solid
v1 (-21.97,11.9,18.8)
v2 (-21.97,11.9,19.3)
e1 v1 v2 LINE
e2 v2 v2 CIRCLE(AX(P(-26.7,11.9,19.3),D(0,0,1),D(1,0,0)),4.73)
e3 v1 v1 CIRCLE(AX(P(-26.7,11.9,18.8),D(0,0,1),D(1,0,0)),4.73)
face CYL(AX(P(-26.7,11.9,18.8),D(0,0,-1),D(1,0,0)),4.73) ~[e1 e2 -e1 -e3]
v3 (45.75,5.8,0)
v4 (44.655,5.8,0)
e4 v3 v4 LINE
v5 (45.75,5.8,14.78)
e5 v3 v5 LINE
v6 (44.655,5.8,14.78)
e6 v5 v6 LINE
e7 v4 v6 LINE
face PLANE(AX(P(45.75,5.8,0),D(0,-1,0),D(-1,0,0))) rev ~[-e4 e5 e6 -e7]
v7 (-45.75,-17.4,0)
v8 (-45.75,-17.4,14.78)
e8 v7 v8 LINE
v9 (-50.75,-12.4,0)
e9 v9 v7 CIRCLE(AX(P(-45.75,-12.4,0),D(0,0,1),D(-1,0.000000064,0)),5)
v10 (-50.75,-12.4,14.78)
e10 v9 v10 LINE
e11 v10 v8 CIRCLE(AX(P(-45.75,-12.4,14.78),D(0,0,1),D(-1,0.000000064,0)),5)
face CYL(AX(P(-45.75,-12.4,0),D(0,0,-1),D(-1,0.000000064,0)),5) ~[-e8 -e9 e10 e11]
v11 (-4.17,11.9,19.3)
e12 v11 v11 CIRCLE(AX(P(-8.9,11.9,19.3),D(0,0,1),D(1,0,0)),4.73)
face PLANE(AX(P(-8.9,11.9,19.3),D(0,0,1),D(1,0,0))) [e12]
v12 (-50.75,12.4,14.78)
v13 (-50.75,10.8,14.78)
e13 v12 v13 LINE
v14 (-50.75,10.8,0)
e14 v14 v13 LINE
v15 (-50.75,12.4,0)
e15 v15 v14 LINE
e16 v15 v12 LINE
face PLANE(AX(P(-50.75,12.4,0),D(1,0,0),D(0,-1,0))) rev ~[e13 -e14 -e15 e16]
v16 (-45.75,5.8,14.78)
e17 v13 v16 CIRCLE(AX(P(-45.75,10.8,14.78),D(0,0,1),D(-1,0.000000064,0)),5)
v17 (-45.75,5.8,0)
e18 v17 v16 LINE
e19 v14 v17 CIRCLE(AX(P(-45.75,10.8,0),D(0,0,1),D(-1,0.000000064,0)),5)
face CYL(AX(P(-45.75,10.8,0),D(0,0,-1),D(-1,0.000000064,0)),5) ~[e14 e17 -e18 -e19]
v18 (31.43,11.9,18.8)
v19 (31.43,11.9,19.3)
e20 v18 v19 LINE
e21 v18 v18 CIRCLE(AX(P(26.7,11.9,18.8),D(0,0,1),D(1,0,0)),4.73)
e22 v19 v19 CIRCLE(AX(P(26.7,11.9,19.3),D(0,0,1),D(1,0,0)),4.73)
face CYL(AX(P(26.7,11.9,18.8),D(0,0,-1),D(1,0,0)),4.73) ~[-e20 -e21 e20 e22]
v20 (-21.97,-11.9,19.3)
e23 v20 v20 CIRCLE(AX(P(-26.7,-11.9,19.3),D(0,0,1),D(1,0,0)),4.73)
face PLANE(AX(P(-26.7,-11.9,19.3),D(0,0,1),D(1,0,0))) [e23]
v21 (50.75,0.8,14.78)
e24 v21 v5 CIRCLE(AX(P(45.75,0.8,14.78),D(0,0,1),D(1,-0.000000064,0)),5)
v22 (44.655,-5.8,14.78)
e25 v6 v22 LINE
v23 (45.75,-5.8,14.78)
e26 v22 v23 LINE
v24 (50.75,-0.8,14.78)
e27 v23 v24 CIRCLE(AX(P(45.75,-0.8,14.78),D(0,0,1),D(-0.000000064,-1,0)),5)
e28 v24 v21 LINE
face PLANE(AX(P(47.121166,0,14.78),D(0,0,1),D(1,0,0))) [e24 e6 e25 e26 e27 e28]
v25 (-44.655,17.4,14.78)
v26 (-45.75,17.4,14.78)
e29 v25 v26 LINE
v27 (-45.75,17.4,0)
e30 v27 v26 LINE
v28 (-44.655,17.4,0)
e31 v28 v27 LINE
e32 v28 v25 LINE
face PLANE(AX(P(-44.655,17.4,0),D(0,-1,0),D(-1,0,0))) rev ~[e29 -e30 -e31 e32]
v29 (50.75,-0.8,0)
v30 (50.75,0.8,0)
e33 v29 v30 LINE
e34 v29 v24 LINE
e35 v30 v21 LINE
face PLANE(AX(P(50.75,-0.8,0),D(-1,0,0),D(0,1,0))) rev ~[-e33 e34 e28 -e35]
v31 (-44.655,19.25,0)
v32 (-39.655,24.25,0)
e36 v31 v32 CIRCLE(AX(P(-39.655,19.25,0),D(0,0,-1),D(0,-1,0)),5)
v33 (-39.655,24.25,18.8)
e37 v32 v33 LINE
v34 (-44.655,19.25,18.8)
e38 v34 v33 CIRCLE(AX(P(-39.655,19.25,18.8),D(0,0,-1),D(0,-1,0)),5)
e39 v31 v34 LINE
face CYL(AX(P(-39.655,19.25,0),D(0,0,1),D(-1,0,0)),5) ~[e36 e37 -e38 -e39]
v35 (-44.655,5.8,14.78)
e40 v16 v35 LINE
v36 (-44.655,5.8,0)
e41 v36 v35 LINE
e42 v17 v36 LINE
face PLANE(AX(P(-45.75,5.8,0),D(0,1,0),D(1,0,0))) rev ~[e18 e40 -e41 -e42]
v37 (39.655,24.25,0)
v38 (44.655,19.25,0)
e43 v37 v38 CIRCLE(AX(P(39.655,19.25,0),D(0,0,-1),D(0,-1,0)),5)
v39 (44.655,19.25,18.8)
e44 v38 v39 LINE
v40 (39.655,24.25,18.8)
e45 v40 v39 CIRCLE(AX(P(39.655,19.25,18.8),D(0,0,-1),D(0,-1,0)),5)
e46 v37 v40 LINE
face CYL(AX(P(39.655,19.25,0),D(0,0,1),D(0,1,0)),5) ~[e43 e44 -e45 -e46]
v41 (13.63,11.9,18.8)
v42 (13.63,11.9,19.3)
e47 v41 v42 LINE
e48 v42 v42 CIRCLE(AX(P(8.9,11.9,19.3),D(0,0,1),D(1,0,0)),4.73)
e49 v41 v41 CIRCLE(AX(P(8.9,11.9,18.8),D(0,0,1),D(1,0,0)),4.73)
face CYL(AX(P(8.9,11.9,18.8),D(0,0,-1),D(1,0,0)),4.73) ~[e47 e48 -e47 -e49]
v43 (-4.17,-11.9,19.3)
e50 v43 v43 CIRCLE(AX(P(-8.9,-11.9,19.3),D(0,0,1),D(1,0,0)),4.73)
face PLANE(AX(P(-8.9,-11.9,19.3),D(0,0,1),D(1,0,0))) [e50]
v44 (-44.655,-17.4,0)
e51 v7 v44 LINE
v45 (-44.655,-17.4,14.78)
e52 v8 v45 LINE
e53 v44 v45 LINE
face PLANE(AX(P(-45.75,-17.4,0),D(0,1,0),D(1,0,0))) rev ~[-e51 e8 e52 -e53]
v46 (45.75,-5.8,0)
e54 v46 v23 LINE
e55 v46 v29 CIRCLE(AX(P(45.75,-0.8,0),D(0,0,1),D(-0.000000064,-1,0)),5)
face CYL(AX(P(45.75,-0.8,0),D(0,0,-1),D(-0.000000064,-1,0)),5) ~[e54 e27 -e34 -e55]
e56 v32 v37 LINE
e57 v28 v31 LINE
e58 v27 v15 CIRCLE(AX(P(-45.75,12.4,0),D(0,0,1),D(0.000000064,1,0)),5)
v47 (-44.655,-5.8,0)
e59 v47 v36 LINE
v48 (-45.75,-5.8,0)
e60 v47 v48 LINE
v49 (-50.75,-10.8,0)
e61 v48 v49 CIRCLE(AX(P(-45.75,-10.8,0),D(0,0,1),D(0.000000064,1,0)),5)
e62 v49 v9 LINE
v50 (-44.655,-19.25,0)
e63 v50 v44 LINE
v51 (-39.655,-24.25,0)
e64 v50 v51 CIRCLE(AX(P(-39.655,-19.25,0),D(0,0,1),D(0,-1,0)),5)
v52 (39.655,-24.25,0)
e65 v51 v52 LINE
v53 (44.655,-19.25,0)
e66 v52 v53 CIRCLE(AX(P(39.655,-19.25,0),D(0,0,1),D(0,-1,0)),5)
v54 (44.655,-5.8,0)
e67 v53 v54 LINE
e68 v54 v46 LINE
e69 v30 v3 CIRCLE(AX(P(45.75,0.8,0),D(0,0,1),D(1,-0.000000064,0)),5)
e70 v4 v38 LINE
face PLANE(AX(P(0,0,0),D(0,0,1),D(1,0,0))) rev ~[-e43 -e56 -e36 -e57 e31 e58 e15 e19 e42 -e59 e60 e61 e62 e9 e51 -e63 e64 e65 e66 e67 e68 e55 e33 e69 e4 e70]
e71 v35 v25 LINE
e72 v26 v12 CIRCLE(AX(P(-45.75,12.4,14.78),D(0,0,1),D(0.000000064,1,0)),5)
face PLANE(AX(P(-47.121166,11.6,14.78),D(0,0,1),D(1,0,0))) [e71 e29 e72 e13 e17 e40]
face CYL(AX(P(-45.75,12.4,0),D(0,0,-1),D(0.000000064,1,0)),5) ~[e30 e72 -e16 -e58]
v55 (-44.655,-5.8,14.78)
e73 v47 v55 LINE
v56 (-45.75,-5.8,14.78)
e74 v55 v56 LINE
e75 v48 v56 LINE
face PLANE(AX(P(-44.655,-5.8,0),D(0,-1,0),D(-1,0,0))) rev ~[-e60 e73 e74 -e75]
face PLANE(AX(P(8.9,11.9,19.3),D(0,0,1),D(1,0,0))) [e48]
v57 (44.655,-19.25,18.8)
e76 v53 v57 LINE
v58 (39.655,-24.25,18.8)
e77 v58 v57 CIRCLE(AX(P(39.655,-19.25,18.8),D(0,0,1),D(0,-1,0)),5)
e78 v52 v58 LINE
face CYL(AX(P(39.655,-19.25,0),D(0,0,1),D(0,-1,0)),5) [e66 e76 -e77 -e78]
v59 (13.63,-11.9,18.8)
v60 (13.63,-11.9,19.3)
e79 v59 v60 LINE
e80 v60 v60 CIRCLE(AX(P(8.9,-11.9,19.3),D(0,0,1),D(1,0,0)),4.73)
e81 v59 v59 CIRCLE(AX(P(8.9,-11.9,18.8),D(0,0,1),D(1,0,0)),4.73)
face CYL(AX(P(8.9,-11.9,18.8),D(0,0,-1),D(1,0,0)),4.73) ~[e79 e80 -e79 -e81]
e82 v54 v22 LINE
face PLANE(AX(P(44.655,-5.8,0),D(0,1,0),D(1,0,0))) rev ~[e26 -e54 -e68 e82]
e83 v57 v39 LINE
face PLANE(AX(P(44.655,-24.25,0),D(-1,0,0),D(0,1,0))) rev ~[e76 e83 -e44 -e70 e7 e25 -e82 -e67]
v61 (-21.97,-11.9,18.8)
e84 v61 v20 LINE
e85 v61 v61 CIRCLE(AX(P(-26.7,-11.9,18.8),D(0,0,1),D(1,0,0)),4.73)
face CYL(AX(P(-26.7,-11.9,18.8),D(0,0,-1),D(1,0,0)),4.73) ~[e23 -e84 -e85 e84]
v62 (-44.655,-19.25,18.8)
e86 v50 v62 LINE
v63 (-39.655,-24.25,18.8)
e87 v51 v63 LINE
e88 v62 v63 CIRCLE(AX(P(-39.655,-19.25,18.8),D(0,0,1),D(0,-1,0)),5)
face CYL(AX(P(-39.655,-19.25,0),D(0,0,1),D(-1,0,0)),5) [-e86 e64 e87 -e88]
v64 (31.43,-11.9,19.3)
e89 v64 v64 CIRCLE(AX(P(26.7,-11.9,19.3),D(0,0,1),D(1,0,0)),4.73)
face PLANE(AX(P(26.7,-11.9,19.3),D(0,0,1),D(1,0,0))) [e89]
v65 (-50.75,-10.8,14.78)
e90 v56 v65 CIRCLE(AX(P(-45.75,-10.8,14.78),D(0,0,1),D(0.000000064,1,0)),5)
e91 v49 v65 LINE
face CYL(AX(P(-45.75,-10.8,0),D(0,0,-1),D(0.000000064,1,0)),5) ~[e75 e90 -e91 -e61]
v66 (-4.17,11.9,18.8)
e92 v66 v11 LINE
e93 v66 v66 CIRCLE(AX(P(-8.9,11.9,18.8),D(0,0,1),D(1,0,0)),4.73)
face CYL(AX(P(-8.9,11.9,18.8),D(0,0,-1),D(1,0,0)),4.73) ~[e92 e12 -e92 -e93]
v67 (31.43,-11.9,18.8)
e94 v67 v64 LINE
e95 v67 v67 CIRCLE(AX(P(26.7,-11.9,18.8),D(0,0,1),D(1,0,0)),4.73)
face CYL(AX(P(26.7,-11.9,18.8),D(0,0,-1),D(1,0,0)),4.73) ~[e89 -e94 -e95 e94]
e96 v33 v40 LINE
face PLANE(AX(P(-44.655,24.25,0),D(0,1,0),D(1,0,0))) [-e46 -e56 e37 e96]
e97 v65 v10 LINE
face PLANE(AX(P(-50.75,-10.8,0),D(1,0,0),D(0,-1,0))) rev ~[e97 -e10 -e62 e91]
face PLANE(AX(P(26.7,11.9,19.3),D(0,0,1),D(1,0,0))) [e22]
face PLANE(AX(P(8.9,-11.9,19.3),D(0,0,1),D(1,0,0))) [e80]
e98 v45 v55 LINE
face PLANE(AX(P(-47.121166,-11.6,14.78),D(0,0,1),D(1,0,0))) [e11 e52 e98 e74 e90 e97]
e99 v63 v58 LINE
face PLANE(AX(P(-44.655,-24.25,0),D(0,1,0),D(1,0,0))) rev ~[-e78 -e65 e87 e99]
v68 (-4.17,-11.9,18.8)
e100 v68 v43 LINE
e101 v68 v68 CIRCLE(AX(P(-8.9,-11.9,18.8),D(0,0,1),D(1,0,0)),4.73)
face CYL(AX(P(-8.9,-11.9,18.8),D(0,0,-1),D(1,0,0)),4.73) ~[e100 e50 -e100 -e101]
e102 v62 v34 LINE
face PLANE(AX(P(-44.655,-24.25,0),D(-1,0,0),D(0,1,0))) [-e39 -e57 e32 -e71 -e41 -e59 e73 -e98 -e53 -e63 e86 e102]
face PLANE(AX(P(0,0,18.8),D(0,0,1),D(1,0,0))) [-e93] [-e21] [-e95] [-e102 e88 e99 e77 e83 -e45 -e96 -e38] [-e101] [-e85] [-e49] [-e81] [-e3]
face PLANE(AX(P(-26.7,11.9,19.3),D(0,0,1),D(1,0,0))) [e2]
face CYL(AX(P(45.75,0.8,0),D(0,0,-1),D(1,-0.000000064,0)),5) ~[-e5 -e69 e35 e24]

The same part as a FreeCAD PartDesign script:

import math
import FreeCAD as App
import Part
import Sketcher
Q = App.Units.Quantity


def edges_at(feature, points):
    """Names of the edges that pass closest to the given points."""
    edges = feature.Shape.Edges
    near = lambda p: min(range(len(edges)), key=lambda i: edges[i].distToShape(Part.Vertex(*p))[0])
    return sorted({f"Edge{near(p) + 1}" for p in points})

doc = App.newDocument("Part")
body = doc.addObject("PartDesign::Body", "Body")

sketch1 = body.newObject("Sketcher::SketchObject", "Sketch")
sketch1.AttachmentSupport = (doc.getObject("XY_Plane"), [""])
sketch1.MapMode = "FlatFace"
sketch1.addGeometry([
    Part.LineSegment(App.Vector(-44.655, 24.25, 0), App.Vector(-44.655, -24.25, 0)),
    Part.LineSegment(App.Vector(-44.655, -24.25, 0), App.Vector(44.655, -24.25, 0)),
    Part.LineSegment(App.Vector(44.655, -24.25, 0), App.Vector(44.655, 24.25, 0)),
    Part.LineSegment(App.Vector(44.655, 24.25, 0), App.Vector(-44.655, 24.25, 0)),
], False)
sketch1.addConstraint([
    Sketcher.Constraint("Coincident", 0, 2, 1, 1),
    Sketcher.Constraint("Coincident", 1, 2, 2, 1),
    Sketcher.Constraint("Coincident", 2, 2, 3, 1),
    Sketcher.Constraint("Coincident", 3, 2, 0, 1),
    Sketcher.Constraint("Vertical", 0),
    Sketcher.Constraint("Horizontal", 1),
    Sketcher.Constraint("Vertical", 2),
    Sketcher.Constraint("Horizontal", 3),
    Sketcher.Constraint("Symmetric", 0, 2, 2, 2, -1, 1),
    Sketcher.Constraint("DistanceY", 0, 2, 0, 1, Q("48.5 mm")),
    Sketcher.Constraint("DistanceX", 1, 1, 1, 2, Q("89.31 mm")),
])
pad1 = body.newObject("PartDesign::Pad", "Pad")
pad1.Profile = sketch1
pad1.Length = 18.8

sketch2 = body.newObject("Sketcher::SketchObject", "Sketch001")
sketch2.AttachmentSupport = (doc.getObject("XY_Plane"), [""])
sketch2.MapMode = "FlatFace"
sketch2.AttachmentOffset = App.Placement(App.Vector(0, 0, 18.8), App.Rotation())
sketch2.addGeometry([
    Part.Circle(App.Vector(-26.7, 11.9, 0), App.Vector(0, 0, 1), 4.73),
    Part.Circle(App.Vector(-26.7, -11.9, 0), App.Vector(0, 0, 1), 4.73),
    Part.Circle(App.Vector(-8.9, 11.9, 0), App.Vector(0, 0, 1), 4.73),
    Part.Circle(App.Vector(-8.9, -11.9, 0), App.Vector(0, 0, 1), 4.73),
    Part.Circle(App.Vector(8.9, 11.9, 0), App.Vector(0, 0, 1), 4.73),
    Part.Circle(App.Vector(8.9, -11.9, 0), App.Vector(0, 0, 1), 4.73),
    Part.Circle(App.Vector(26.7, 11.9, 0), App.Vector(0, 0, 1), 4.73),
    Part.Circle(App.Vector(26.7, -11.9, 0), App.Vector(0, 0, 1), 4.73),
], False)
sketch2.addConstraint([
    Sketcher.Constraint("Equal", 0, 1),
    Sketcher.Constraint("Equal", 1, 2),
    Sketcher.Constraint("Equal", 2, 3),
    Sketcher.Constraint("Equal", 3, 4),
    Sketcher.Constraint("Equal", 4, 5),
    Sketcher.Constraint("Equal", 5, 6),
    Sketcher.Constraint("Equal", 6, 7),
    Sketcher.Constraint("Symmetric", 3, 3, 4, 3, -1, 1),
    Sketcher.Constraint("Symmetric", 2, 3, 5, 3, -1, 1),
    Sketcher.Constraint("Symmetric", 1, 3, 6, 3, -1, 1),
    Sketcher.Constraint("Symmetric", 0, 3, 7, 3, -1, 1),
    Sketcher.Constraint("Symmetric", 2, 3, 4, 3, -2),
    Sketcher.Constraint("Symmetric", 0, 3, 6, 3, -2),
    Sketcher.Constraint("Horizontal", 0, 3, 2, 3),
    Sketcher.Constraint("Diameter", 0, Q("9.46 mm")),
    Sketcher.Constraint("DistanceX", 0, 3, -1, 1, Q("26.7 mm")),
    Sketcher.Constraint("DistanceY", -1, 1, 0, 3, Q("11.9 mm")),
    Sketcher.Constraint("DistanceX", 2, 3, -1, 1, Q("8.9 mm")),
])
pad2 = body.newObject("PartDesign::Pad", "Pad001")
pad2.Profile = sketch2
pad2.Length = 0.5
doc.recompute()

fillet = body.newObject("PartDesign::Fillet", "Fillet")
fillet.Base = (pad2, edges_at(pad2, [
    (-44.655, 24.25, 9.4),
    (-44.655, -24.25, 9.4),
    (44.655, -24.25, 9.4),
    (44.655, 24.25, 9.4),
]))
fillet.Radius = 5

sketch3 = body.newObject("Sketcher::SketchObject", "Sketch002")
sketch3.AttachmentSupport = (doc.getObject("XY_Plane"), [""])
sketch3.MapMode = "FlatFace"
sketch3.addGeometry([
    Part.LineSegment(App.Vector(45.75, 5.8, 0), App.Vector(44.655, 5.8, 0)),
    Part.LineSegment(App.Vector(44.655, 5.8, 0), App.Vector(44.655, -5.8, 0)),
    Part.LineSegment(App.Vector(44.655, -5.8, 0), App.Vector(45.75, -5.8, 0)),
    Part.ArcOfCircle(Part.Circle(App.Vector(45.75, -0.8, 0), App.Vector(0, 0, 1), 5), math.radians(-90.000004), math.radians(0.000004)),
    Part.LineSegment(App.Vector(50.75, -0.8, 0), App.Vector(50.75, 0.8, 0)),
    Part.ArcOfCircle(Part.Circle(App.Vector(45.75, 0.8, 0), App.Vector(0, 0, 1), 5), math.radians(-0.000004), math.radians(90.000004)),
], False)
sketch3.addConstraint([
    Sketcher.Constraint("Coincident", 0, 2, 1, 1),
    Sketcher.Constraint("Coincident", 1, 2, 2, 1),
    Sketcher.Constraint("Tangent", 2, 2, 3, 1),
    Sketcher.Constraint("Tangent", 3, 2, 4, 1),
    Sketcher.Constraint("Tangent", 4, 2, 5, 1),
    Sketcher.Constraint("Tangent", 5, 2, 0, 1),
    Sketcher.Constraint("Horizontal", 0),
    Sketcher.Constraint("Vertical", 1),
    Sketcher.Constraint("Horizontal", 2),
    Sketcher.Constraint("Vertical", 4),
    Sketcher.Constraint("Equal", 3, 5),
    Sketcher.Constraint("Radius", 3, Q("5 mm")),
    Sketcher.Constraint("DistanceY", 1, 2, 1, 1, Q("11.6 mm")),
    Sketcher.Constraint("DistanceY", 3, 3, -1, 1, Q("0.8 mm")),
    Sketcher.Constraint("DistanceX", 0, 2, 0, 1, Q("1.095 mm")),
    Sketcher.Constraint("DistanceX", -1, 1, 3, 3, Q("45.75 mm")),
])
pad3 = body.newObject("PartDesign::Pad", "Pad002")
pad3.Profile = sketch3
pad3.Length = 14.78

sketch4 = body.newObject("Sketcher::SketchObject", "Sketch003")
sketch4.AttachmentSupport = (doc.getObject("XY_Plane"), [""])
sketch4.MapMode = "FlatFace"
sketch4.addGeometry([
    Part.ArcOfCircle(Part.Circle(App.Vector(-45.75, 10.8, 0), App.Vector(0, 0, 1), 5), math.radians(179.999996), math.radians(270.000004)),
    Part.LineSegment(App.Vector(-45.75, 5.8, 0), App.Vector(-44.655, 5.8, 0)),
    Part.LineSegment(App.Vector(-44.655, 5.8, 0), App.Vector(-44.655, 17.4, 0)),
    Part.LineSegment(App.Vector(-44.655, 17.4, 0), App.Vector(-45.75, 17.4, 0)),
    Part.ArcOfCircle(Part.Circle(App.Vector(-45.75, 12.4, 0), App.Vector(0, 0, 1), 5), math.radians(89.999996), math.radians(180.000004)),
    Part.LineSegment(App.Vector(-50.75, 12.4, 0), App.Vector(-50.75, 10.8, 0)),
    Part.LineSegment(App.Vector(-45.75, -17.4, 0), App.Vector(-44.655, -17.4, 0)),
    Part.LineSegment(App.Vector(-44.655, -17.4, 0), App.Vector(-44.655, -5.8, 0)),
    Part.LineSegment(App.Vector(-44.655, -5.8, 0), App.Vector(-45.75, -5.8, 0)),
    Part.ArcOfCircle(Part.Circle(App.Vector(-45.75, -10.8, 0), App.Vector(0, 0, 1), 5), math.radians(89.999996), math.radians(180.000004)),
    Part.LineSegment(App.Vector(-50.75, -10.8, 0), App.Vector(-50.75, -12.4, 0)),
    Part.ArcOfCircle(Part.Circle(App.Vector(-45.75, -12.4, 0), App.Vector(0, 0, 1), 5), math.radians(179.999996), math.radians(270.000004)),
], False)
sketch4.addConstraint([
    Sketcher.Constraint("Tangent", 0, 2, 1, 1),
    Sketcher.Constraint("Coincident", 1, 2, 2, 1),
    Sketcher.Constraint("Coincident", 2, 2, 3, 1),
    Sketcher.Constraint("Tangent", 3, 2, 4, 1),
    Sketcher.Constraint("Tangent", 4, 2, 5, 1),
    Sketcher.Constraint("Tangent", 5, 2, 0, 1),
    Sketcher.Constraint("Coincident", 6, 2, 7, 1),
    Sketcher.Constraint("Coincident", 7, 2, 8, 1),
    Sketcher.Constraint("Tangent", 8, 2, 9, 1),
    Sketcher.Constraint("Tangent", 9, 2, 10, 1),
    Sketcher.Constraint("Tangent", 10, 2, 11, 1),
    Sketcher.Constraint("Tangent", 11, 2, 6, 1),
    Sketcher.Constraint("Horizontal", 1),
    Sketcher.Constraint("Vertical", 2),
    Sketcher.Constraint("Horizontal", 3),
    Sketcher.Constraint("Vertical", 5),
    Sketcher.Constraint("Horizontal", 6),
    Sketcher.Constraint("Vertical", 7),
    Sketcher.Constraint("Horizontal", 8),
    Sketcher.Constraint("Vertical", 10),
    Sketcher.Constraint("Equal", 0, 4),
    Sketcher.Constraint("Equal", 4, 9),
    Sketcher.Constraint("Equal", 9, 11),
    Sketcher.Constraint("Symmetric", 0, 3, 9, 3, -1),
    Sketcher.Constraint("Symmetric", 2, 2, 6, 2, -1),
    Sketcher.Constraint("Radius", 0, Q("5 mm")),
    Sketcher.Constraint("DistanceY", 2, 1, 2, 2, Q("11.6 mm")),
    Sketcher.Constraint("DistanceY", -1, 1, 0, 3, Q("10.8 mm")),
    Sketcher.Constraint("DistanceX", 1, 1, 1, 2, Q("1.095 mm")),
    Sketcher.Constraint("DistanceX", 0, 3, -1, 1, Q("45.75 mm")),
])
pad4 = body.newObject("PartDesign::Pad", "Pad003")
pad4.Profile = sketch4
pad4.Length = 14.78

doc.recompute()
